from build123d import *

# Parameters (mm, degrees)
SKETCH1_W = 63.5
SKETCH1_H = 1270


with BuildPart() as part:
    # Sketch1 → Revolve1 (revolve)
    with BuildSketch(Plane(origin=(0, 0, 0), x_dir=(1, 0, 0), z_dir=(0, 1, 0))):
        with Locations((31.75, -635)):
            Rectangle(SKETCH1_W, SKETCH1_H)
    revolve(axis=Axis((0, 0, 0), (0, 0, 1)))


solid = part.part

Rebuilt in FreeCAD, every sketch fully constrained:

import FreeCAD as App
import Part
import Sketcher
Q = App.Units.Quantity

doc = App.newDocument("Part")
body = doc.addObject("PartDesign::Body", "Body")

sketch1 = body.newObject("Sketcher::SketchObject", "Sketch")
sketch1.AttachmentSupport = (doc.getObject("XZ_Plane"), [""])
sketch1.MapMode = "FlatFace"
sketch1.addGeometry(Part.LineSegment(App.Vector(0, 0, 0), App.Vector(0, 1270, 0)), False)
sketch1.addGeometry(Part.LineSegment(App.Vector(0, 1270, 0), App.Vector(64, 1270, 0)), False)
sketch1.addGeometry(Part.LineSegment(App.Vector(64, 1270, 0), App.Vector(64, 0, 0)), False)
sketch1.addGeometry(Part.LineSegment(App.Vector(64, 0, 0), App.Vector(0, 0, 0)), False)
sketch1.addConstraint(Sketcher.Constraint("Coincident", 0, 2, 1, 1))
sketch1.addConstraint(Sketcher.Constraint("Coincident", 1, 2, 2, 1))
sketch1.addConstraint(Sketcher.Constraint("Coincident", 2, 2, 3, 1))
sketch1.addConstraint(Sketcher.Constraint("Coincident", 3, 2, 0, 1))
sketch1.addConstraint(Sketcher.Constraint("Vertical", 0))
sketch1.addConstraint(Sketcher.Constraint("Horizontal", 1))
sketch1.addConstraint(Sketcher.Constraint("Vertical", 2))
sketch1.addConstraint(Sketcher.Constraint("Horizontal", 3))
sketch1.addConstraint(Sketcher.Constraint("Coincident", 3, 2, -1, 1))
sketch1.addConstraint(Sketcher.Constraint("DistanceY", 0, 1, 0, 2, Q("50 in")))
sketch1.addConstraint(Sketcher.Constraint("DistanceX", 1, 1, 1, 2, Q("2.5 in")))
revolution = body.newObject("PartDesign::Revolution", "Revolution")
revolution.Profile = sketch1
revolution.ReferenceAxis = (sketch1, ["V_Axis"])
revolution.Angle = 360

doc.recompute()
